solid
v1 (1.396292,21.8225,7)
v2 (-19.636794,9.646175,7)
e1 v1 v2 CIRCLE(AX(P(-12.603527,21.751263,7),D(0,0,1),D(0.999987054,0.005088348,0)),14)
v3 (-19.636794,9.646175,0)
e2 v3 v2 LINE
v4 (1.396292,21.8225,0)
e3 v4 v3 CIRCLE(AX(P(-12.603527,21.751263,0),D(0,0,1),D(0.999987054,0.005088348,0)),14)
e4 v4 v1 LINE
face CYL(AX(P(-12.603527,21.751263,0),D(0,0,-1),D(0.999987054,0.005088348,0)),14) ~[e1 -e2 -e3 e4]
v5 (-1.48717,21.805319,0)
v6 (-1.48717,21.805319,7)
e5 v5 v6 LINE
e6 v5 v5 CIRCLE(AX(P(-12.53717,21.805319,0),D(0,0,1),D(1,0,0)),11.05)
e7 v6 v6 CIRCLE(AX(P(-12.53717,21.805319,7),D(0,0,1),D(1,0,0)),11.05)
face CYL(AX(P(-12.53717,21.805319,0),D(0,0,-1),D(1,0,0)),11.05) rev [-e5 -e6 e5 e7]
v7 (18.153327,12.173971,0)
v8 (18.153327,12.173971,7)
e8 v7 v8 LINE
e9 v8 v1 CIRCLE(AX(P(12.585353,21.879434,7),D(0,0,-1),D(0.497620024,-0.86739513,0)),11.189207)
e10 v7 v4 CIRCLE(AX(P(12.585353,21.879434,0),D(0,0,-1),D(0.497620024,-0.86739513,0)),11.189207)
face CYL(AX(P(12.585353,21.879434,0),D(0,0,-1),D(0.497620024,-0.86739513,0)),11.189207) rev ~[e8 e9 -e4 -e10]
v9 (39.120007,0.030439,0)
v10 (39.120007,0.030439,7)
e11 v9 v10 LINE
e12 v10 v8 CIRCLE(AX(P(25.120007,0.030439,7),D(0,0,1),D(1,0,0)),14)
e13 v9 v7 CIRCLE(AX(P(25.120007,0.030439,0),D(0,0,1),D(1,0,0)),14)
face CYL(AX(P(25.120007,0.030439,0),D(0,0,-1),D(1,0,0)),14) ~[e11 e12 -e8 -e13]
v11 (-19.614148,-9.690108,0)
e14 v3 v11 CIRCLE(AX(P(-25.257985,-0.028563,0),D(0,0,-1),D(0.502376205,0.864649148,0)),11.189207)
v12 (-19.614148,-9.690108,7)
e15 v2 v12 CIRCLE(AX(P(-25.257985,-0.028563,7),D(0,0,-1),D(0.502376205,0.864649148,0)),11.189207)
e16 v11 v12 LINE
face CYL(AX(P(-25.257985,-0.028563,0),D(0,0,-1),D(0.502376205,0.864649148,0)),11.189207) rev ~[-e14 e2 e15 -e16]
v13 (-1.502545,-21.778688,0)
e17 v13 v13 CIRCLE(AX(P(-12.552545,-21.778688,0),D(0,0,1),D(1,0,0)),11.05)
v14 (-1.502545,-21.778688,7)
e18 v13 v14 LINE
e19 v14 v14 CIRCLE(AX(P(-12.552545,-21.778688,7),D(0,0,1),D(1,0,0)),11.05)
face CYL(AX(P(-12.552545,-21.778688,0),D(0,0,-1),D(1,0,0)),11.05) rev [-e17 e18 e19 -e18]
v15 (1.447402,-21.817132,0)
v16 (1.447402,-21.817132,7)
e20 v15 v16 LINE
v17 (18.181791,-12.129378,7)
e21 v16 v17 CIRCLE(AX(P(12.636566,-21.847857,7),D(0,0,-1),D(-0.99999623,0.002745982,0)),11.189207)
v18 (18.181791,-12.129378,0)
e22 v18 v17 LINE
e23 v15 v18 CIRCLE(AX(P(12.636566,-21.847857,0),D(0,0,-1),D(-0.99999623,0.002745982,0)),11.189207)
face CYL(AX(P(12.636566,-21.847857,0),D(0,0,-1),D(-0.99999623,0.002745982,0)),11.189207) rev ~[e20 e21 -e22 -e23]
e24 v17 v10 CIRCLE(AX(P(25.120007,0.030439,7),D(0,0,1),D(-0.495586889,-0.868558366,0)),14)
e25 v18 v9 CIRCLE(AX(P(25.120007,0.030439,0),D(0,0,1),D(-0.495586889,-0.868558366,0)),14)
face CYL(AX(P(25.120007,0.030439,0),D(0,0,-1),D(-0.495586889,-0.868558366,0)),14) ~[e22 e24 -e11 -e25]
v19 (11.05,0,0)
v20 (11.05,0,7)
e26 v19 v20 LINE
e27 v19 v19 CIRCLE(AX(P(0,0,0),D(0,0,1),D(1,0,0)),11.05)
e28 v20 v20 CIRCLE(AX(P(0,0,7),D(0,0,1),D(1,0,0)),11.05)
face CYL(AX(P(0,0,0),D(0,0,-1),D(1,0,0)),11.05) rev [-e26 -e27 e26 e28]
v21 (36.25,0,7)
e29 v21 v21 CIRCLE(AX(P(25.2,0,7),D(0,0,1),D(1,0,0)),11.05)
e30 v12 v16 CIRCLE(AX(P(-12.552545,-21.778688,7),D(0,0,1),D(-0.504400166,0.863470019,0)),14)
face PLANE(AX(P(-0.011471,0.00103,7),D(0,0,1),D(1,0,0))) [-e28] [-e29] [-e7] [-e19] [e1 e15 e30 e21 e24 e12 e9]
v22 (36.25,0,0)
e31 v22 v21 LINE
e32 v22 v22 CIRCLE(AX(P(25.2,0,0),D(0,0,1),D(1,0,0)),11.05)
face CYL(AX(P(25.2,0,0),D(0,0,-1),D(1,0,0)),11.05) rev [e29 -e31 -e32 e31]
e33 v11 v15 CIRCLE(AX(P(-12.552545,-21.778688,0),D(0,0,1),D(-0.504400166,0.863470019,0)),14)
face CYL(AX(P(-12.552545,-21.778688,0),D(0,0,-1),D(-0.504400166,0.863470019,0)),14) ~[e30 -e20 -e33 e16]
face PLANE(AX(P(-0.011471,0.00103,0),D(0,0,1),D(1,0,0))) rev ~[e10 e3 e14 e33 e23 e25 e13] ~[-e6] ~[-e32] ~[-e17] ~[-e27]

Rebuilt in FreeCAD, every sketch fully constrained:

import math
import FreeCAD as App
import Part
import Sketcher
from FreeCAD import Vector
Q = App.Units.Quantity

doc = App.newDocument("Part")
params = doc.addObject("Spreadsheet::Sheet", "Params")
for row, (alias, value) in enumerate([
    ("sketch1_radius", "14 mm"),
    ("sketch1_diameter", "22.1 mm"),
    ("pad1_length", "7 mm"),
], start=1):
    params.set(f"A{row}", alias)
    params.set(f"B{row}", "=" + value)
    params.setAlias(f"B{row}", alias)

body = doc.addObject("PartDesign::Body", "Body")

# Sketch on XY plane
sketch1 = doc.addObject("Sketcher::SketchObject", "Sketch")
body.addObject(sketch1)
sketch1.AttachmentSupport = (doc.XY_Plane, [""])
sketch1.MapMode = "FlatFace"
sketch1.addGeometry([
    Part.ArcOfCircle(Part.Circle(Vector(-25.257985, -0.028563, 0), Vector(0, 0, 1), 11.189207), math.radians(-59.708458), math.radians(59.842667)),  # 0
    Part.ArcOfCircle(Part.Circle(Vector(-12.552545, -21.778688, 0), Vector(0, 0, 1), 14), math.radians(120.291542), math.radians(359.842667)),  # 1
    Part.ArcOfCircle(Part.Circle(Vector(12.636566, -21.847857, 0), Vector(0, 0, 1), 11.189207), math.radians(60.291542), math.radians(179.842667)),  # 2
    Part.ArcOfCircle(Part.Circle(Vector(25.120007, 0.030439, 0), Vector(0, 0, 1), 14), math.radians(-119.708458), math.radians(0)),  # 3
    Part.ArcOfCircle(Part.Circle(Vector(25.120007, 0.030439, 0), Vector(0, 0, 1), 14), math.radians(0), math.radians(119.842667)),  # 4
    Part.ArcOfCircle(Part.Circle(Vector(12.585353, 21.879434, 0), Vector(0, 0, 1), 11.189207), math.radians(-179.708458), math.radians(-60.157333)),  # 5
    Part.ArcOfCircle(Part.Circle(Vector(-12.603527, 21.751263, 0), Vector(0, 0, 1), 14), math.radians(0.291542), math.radians(239.842667)),  # 6
    Part.Circle(Vector(-12.552545, -21.778688, 0), Vector(0, 0, 1), 11.05),  # 7
    Part.Circle(Vector(0, 0, 0), Vector(0, 0, 1), 11.05),  # 8
    Part.Circle(Vector(25.2, 0, 0), Vector(0, 0, 1), 11.05),  # 9
    Part.Circle(Vector(-12.53717, 21.805319, 0), Vector(0, 0, 1), 11.05),  # 10
], False)
sketch1.addConstraint([
    Sketcher.Constraint("Tangent", 0, 1, 1, 1),
    Sketcher.Constraint("Tangent", 1, 2, 2, 2),
    Sketcher.Constraint("Tangent", 2, 1, 3, 1),
    Sketcher.Constraint("Tangent", 3, 2, 4, 1),
    Sketcher.Constraint("Tangent", 4, 2, 5, 2),
    Sketcher.Constraint("Tangent", 5, 1, 6, 1),
    Sketcher.Constraint("Tangent", 6, 2, 0, 2),
    Sketcher.Constraint("Coincident", 8, 3, -1, 1),
    Sketcher.Constraint("Coincident", 7, 3, 1, 3),
    Sketcher.Constraint("Equal", 0, 2),
    Sketcher.Constraint("Equal", 1, 3),
    Sketcher.Constraint("Equal", 3, 4),
    Sketcher.Constraint("Equal", 2, 5),
    Sketcher.Constraint("Equal", 4, 6),
    Sketcher.Constraint("Equal", 7, 8),
    Sketcher.Constraint("Equal", 8, 9),
    Sketcher.Constraint("Equal", 9, 10),
    Sketcher.Constraint("PointOnObject", 9, 3, -1),
    Sketcher.Constraint("Horizontal", 4, 3, 3, 2),
    Sketcher.Constraint("Radius", 1, Q("14 mm")),
    Sketcher.Constraint("Diameter", 7, Q("22.1 mm")),
    Sketcher.Constraint("DistanceX", -1, 1, 9, 3, Q("25.2 mm")),
    Sketcher.Constraint("Radius", 0, Q("11.189207 mm")),
    Sketcher.Constraint("DistanceX", -1, 1, 1, 2, Q("1.447402 mm")),
    Sketcher.Constraint("DistanceY", -1, 1, 5, 1, Q("21.8225 mm")),
    Sketcher.Constraint("DistanceX", 1, 3, 5, 3, Q("25.137899 mm")),
    Sketcher.Constraint("DistanceY", 1, 3, -1, 1, Q("21.778688 mm")),
    Sketcher.Constraint("DistanceY", -1, 1, 3, 3, Q("0.030439 mm")),
    Sketcher.Constraint("DistanceX", 10, 3, -1, 1, Q("12.53717 mm")),
    Sketcher.Constraint("DistanceY", -1, 1, 10, 3, Q("21.805319 mm")),
    Sketcher.Constraint("DistanceY", 1, 2, -1, 1, Q("21.817132 mm")),
])
sketch1.setExpression("Constraints[19]", "Params.sketch1_radius")
sketch1.setExpression("Constraints[20]", "Params.sketch1_diameter")
pad1 = doc.addObject("PartDesign::Pad", "Pad")
body.addObject(pad1)
pad1.Profile = sketch1
pad1.setExpression("Length", "Params.pad1_length")

doc.recompute()
